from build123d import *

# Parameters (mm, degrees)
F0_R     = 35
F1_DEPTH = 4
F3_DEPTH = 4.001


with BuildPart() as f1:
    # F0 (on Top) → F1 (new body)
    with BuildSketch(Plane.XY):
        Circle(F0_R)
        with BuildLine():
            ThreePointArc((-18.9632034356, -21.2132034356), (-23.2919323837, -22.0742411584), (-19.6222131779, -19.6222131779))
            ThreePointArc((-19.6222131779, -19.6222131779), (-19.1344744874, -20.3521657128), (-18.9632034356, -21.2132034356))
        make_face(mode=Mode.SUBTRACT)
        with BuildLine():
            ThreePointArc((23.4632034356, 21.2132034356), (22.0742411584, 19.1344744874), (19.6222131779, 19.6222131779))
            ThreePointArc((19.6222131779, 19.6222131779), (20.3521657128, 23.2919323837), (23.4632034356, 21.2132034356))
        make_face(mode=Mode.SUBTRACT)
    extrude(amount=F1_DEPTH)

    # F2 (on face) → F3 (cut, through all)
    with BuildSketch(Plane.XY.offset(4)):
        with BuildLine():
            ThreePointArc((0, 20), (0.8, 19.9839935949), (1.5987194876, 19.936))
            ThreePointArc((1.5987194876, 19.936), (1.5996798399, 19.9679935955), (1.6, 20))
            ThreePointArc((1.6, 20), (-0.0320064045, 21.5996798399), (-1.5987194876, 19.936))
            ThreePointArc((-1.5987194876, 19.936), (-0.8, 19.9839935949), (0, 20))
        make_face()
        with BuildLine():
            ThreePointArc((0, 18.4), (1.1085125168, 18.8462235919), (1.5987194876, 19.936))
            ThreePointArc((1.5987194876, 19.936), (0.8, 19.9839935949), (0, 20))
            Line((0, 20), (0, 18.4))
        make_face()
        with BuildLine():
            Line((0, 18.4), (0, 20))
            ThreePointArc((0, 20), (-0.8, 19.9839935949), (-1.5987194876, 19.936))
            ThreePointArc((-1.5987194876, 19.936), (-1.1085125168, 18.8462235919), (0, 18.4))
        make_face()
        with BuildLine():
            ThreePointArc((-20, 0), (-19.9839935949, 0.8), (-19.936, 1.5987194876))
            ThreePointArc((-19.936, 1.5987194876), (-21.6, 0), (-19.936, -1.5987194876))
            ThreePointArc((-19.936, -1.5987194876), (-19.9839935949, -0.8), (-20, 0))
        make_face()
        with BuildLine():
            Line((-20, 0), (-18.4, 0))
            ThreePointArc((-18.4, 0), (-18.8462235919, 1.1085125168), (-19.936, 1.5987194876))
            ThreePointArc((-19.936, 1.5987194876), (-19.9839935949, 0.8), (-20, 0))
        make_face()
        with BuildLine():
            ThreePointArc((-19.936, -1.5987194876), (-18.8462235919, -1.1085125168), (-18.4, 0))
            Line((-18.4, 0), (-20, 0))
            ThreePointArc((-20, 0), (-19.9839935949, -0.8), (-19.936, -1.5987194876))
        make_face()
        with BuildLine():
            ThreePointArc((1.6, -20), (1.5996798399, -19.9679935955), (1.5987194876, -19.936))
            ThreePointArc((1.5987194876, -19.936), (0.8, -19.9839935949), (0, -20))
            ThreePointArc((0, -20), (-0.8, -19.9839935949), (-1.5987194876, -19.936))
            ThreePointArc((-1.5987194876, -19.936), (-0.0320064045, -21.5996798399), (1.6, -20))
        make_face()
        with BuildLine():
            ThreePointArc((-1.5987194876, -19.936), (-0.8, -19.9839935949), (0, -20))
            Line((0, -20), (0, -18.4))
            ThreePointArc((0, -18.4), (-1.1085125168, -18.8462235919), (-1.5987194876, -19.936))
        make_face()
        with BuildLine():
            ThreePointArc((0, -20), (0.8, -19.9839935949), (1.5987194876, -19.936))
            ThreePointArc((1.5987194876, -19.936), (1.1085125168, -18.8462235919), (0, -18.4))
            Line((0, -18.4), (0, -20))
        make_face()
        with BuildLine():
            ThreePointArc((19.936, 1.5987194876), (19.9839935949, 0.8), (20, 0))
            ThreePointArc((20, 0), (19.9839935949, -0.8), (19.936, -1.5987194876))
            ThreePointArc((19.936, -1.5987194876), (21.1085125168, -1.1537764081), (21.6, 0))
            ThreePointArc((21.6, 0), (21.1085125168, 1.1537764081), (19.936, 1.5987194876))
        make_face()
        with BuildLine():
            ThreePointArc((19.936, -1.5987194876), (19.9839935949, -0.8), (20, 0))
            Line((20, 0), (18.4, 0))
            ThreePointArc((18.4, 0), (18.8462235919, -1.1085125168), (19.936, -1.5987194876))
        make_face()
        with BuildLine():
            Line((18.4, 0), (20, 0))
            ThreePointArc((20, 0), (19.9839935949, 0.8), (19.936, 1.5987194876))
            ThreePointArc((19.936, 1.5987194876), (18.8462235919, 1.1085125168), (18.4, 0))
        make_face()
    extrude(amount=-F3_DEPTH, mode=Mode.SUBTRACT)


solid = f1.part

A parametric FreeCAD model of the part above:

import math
import FreeCAD as App
import Part
import Sketcher
from FreeCAD import Vector
Q = App.Units.Quantity

doc = App.newDocument("Part")
body = doc.addObject("PartDesign::Body", "Body")

sketch1 = doc.addObject("Sketcher::SketchObject", "Sketch")
body.addObject(sketch1)
sketch1.AttachmentSupport = (doc.XY_Plane, [""])
sketch1.MapMode = "FlatFace"
sketch1.addGeometry([
    Part.Circle(Vector(0, 0, 0), Vector(0, 0, 1), 35),
    Part.ArcOfCircle(Part.Circle(Vector(-21.2, -21.2, 0), Vector(0, 0, 1), 2.2), math.radians(0), math.radians(45)),
    Part.ArcOfCircle(Part.Circle(Vector(-21.2, -21.2, 0), Vector(0, 0, 1), 2.2), math.radians(45), math.radians(360)),
    Part.ArcOfCircle(Part.Circle(Vector(21.2, 21.2, 0), Vector(0, 0, 1), 2.2), math.radians(0), math.radians(225)),
    Part.ArcOfCircle(Part.Circle(Vector(21.2, 21.2, 0), Vector(0, 0, 1), 2.2), math.radians(-135), math.radians(0)),
], False)
sketch1.addConstraint([
    Sketcher.Constraint("Tangent", 1, 1, 2, 2),
    Sketcher.Constraint("Coincident", 2, 1, 1, 2),
    Sketcher.Constraint("Tangent", 3, 1, 4, 2),
    Sketcher.Constraint("Coincident", 4, 1, 3, 2),
    Sketcher.Constraint("Coincident", 0, 3, -1, 1),
    Sketcher.Constraint("Equal", 2, 3),
    Sketcher.Constraint("Symmetric", 1, 3, 3, 3, -1, 1),
    Sketcher.Constraint("Horizontal", 2, 3, 1, 1),
    Sketcher.Constraint("Horizontal", 4, 3, 3, 1),
    Sketcher.Constraint("Diameter", 0, Q("70 mm")),
    Sketcher.Constraint("Radius", 1, Q("2.25 mm")),
    Sketcher.Constraint("DistanceX", 2, 1, 1, 1, Q("0.65901 mm")),
    Sketcher.Constraint("DistanceX", 4, 1, 3, 3, Q("1.59099 mm")),
    Sketcher.Constraint("DistanceX", 1, 3, -1, 1, Q("21.213203 mm")),
    Sketcher.Constraint("DistanceY", 1, 3, -1, 1, Q("21.213203 mm")),
])
pad1 = doc.addObject("PartDesign::Pad", "Pad")
body.addObject(pad1)
pad1.Profile = sketch1
pad1.Length = 4

sketch2 = doc.addObject("Sketcher::SketchObject", "Sketch001")
body.addObject(sketch2)
sketch2.AttachmentSupport = (doc.XY_Plane, [""])
sketch2.MapMode = "FlatFace"
sketch2.AttachmentOffset = App.Placement(Vector(0, 0, 4), App.Rotation())
sketch2.addGeometry([
    Part.ArcOfCircle(Part.Circle(Vector(0, 20, 0), Vector(0, 0, 1), 1.6), math.radians(-2.29), math.radians(0)),
    Part.ArcOfCircle(Part.Circle(Vector(0, 20, 0), Vector(0, 0, 1), 1.6), math.radians(0), math.radians(182)),
    Part.ArcOfCircle(Part.Circle(Vector(0, 20, 0), Vector(0, 0, 1), 1.6), math.radians(-178), math.radians(-90)),
    Part.ArcOfCircle(Part.Circle(Vector(0, 20, 0), Vector(0, 0, 1), 1.6), math.radians(-90), math.radians(-2)),
    Part.ArcOfCircle(Part.Circle(Vector(-20, 0, 0), Vector(0, 0, 1), 1.6), math.radians(88), math.radians(272)),
    Part.ArcOfCircle(Part.Circle(Vector(-20, 0, 0), Vector(0, 0, 1), 1.6), math.radians(-88), math.radians(0)),
    Part.ArcOfCircle(Part.Circle(Vector(-20, 0, 0), Vector(0, 0, 1), 1.6), math.radians(0), math.radians(88)),
    Part.ArcOfCircle(Part.Circle(Vector(0, -20, 0), Vector(0, 0, 1), 1.6), math.radians(0), math.radians(2.29)),
    Part.ArcOfCircle(Part.Circle(Vector(0, -20, 0), Vector(0, 0, 1), 1.6), math.radians(2), math.radians(90)),
    Part.ArcOfCircle(Part.Circle(Vector(0, -20, 0), Vector(0, 0, 1), 1.6), math.radians(90), math.radians(178)),
    Part.ArcOfCircle(Part.Circle(Vector(0, -20, 0), Vector(0, 0, 1), 1.6), math.radians(178), math.radians(360)),
    Part.ArcOfCircle(Part.Circle(Vector(20, 0, 0), Vector(0, 0, 1), 1.6), math.radians(180), math.radians(268)),
    Part.ArcOfCircle(Part.Circle(Vector(20, 0, 0), Vector(0, 0, 1), 1.6), math.radians(-92), math.radians(0)),
    Part.ArcOfCircle(Part.Circle(Vector(20, 0, 0), Vector(0, 0, 1), 1.6), math.radians(0), math.radians(92)),
    Part.ArcOfCircle(Part.Circle(Vector(20, 0, 0), Vector(0, 0, 1), 1.6), math.radians(92), math.radians(180)),
], False)
sketch2.addConstraint([
    Sketcher.Constraint("Tangent", 0, 2, 1, 1),
    Sketcher.Constraint("Tangent", 1, 2, 2, 1),
    Sketcher.Constraint("Tangent", 2, 2, 3, 1),
    Sketcher.Constraint("Tangent", 3, 2, 0, 1),
    Sketcher.Constraint("Tangent", 4, 2, 5, 1),
    Sketcher.Constraint("Tangent", 5, 2, 6, 1),
    Sketcher.Constraint("Tangent", 6, 2, 4, 1),
    Sketcher.Constraint("Tangent", 7, 2, 8, 1),
    Sketcher.Constraint("Tangent", 8, 2, 9, 1),
    Sketcher.Constraint("Tangent", 9, 2, 10, 1),
    Sketcher.Constraint("Tangent", 10, 2, 7, 1),
    Sketcher.Constraint("Tangent", 11, 2, 12, 1),
    Sketcher.Constraint("Tangent", 12, 2, 13, 1),
    Sketcher.Constraint("Tangent", 13, 2, 14, 1),
    Sketcher.Constraint("Tangent", 14, 2, 11, 1),
    Sketcher.Constraint("Equal", 0, 1),
    Sketcher.Constraint("Equal", 3, 4),
    Sketcher.Constraint("Equal", 6, 7),
    Sketcher.Constraint("Equal", 7, 8),
    Sketcher.Constraint("Equal", 10, 11),
    Sketcher.Constraint("Equal", 11, 12),
    Sketcher.Constraint("Symmetric", 0, 3, 7, 3, -1, 1),
    Sketcher.Constraint("Symmetric", 4, 3, 11, 3, -1, 1),
    Sketcher.Constraint("Symmetric", 1, 2, 3, 2, -2),
    Sketcher.Constraint("Symmetric", 4, 2, 11, 2, -2),
    Sketcher.Constraint("PointOnObject", 2, 2, -2),
    Sketcher.Constraint("PointOnObject", 5, 2, -1),
    Sketcher.Constraint("PointOnObject", 8, 2, -2),
    Sketcher.Constraint("PointOnObject", 12, 2, -1),
    Sketcher.Constraint("PointOnObject", 14, 2, -1),
    Sketcher.Constraint("Horizontal", 3, 3, 0, 2),
    Sketcher.Constraint("Horizontal", 7, 2, 9, 2),
    Sketcher.Constraint("Horizontal", 9, 3, 10, 2),
    Sketcher.Constraint("Horizontal", 6, 2, 13, 2),
    Sketcher.Constraint("Vertical", 4, 2, 6, 2),
    Sketcher.Constraint("Vertical", 3, 2, 7, 2),
    Sketcher.Constraint("Radius", 0, Q("1.6 mm")),
    Sketcher.Constraint("DistanceY", -1, 1, 0, 3, Q("20 mm")),
    Sketcher.Constraint("DistanceX", 4, 3, -1, 1, Q("20 mm")),
    Sketcher.Constraint("DistanceY", -1, 1, 1, 2, Q("19.936 mm")),
    Sketcher.Constraint("DistanceX", 4, 2, -1, 1, Q("19.936 mm")),
])
pocket1 = doc.addObject("PartDesign::Pocket", "Pocket")
body.addObject(pocket1)
pocket1.Profile = sketch2
pocket1.Type = "ThroughAll"

doc.recompute()
